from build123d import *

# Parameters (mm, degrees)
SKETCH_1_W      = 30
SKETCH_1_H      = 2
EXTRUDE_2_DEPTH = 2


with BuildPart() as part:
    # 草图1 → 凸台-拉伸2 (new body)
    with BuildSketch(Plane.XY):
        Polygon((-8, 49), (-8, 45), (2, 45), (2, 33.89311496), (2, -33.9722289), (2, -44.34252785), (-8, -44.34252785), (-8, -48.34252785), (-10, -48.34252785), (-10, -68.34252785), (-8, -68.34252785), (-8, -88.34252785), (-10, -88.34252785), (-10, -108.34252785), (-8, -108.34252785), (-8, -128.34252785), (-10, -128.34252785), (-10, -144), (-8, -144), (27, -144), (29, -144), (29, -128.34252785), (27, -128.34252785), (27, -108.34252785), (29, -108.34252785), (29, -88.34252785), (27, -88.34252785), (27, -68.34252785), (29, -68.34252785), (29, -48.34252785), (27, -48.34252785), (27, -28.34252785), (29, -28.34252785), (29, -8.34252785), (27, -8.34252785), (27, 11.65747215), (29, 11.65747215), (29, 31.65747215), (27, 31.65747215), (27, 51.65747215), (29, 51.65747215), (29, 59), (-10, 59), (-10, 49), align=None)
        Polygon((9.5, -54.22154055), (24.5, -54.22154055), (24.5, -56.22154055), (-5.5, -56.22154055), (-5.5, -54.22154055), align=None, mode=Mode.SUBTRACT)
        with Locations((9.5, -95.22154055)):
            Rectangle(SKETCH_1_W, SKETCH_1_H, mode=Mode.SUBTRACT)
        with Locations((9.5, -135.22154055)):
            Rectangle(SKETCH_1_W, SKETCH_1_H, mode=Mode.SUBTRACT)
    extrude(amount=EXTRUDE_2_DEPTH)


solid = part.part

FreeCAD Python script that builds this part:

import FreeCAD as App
import Part
import Sketcher

doc = App.newDocument("Part")
body = doc.addObject("PartDesign::Body", "Body")

# Sketch on XY plane
sketch1 = body.newObject("Sketcher::SketchObject", "Sketch")
sketch1.AttachmentSupport = (doc.getObject("XY_Plane"), [""])
sketch1.MapMode = "FlatFace"
sketch1.addGeometry(Part.LineSegment(App.Vector(-8, 49, 0), App.Vector(-8, 45, 0)), False)
sketch1.addGeometry(Part.LineSegment(App.Vector(-8, 45, 0), App.Vector(2, 45, 0)), False)
sketch1.addGeometry(Part.LineSegment(App.Vector(2, 45, 0), App.Vector(2, -44.3, 0)), False)
sketch1.addGeometry(Part.LineSegment(App.Vector(2, -44.3, 0), App.Vector(-8, -44.3, 0)), False)
sketch1.addGeometry(Part.LineSegment(App.Vector(-8, -44.3, 0), App.Vector(-8, -48.3, 0)), False)
sketch1.addGeometry(Part.LineSegment(App.Vector(-8, -48.3, 0), App.Vector(-10, -48.3, 0)), False)
sketch1.addGeometry(Part.LineSegment(App.Vector(-10, -48.3, 0), App.Vector(-10, -68.3, 0)), False)
sketch1.addGeometry(Part.LineSegment(App.Vector(-10, -68.3, 0), App.Vector(-8, -68.3, 0)), False)
sketch1.addGeometry(Part.LineSegment(App.Vector(-8, -68.3, 0), App.Vector(-8, -88.3, 0)), False)
sketch1.addGeometry(Part.LineSegment(App.Vector(-8, -88.3, 0), App.Vector(-10, -88.3, 0)), False)
sketch1.addGeometry(Part.LineSegment(App.Vector(-10, -88.3, 0), App.Vector(-10, -108.3, 0)), False)
sketch1.addGeometry(Part.LineSegment(App.Vector(-10, -108.3, 0), App.Vector(-8, -108.3, 0)), False)
sketch1.addGeometry(Part.LineSegment(App.Vector(-8, -108.3, 0), App.Vector(-8, -128.3, 0)), False)
sketch1.addGeometry(Part.LineSegment(App.Vector(-8, -128.3, 0), App.Vector(-10, -128.3, 0)), False)
sketch1.addGeometry(Part.LineSegment(App.Vector(-10, -128.3, 0), App.Vector(-10, -144, 0)), False)
sketch1.addGeometry(Part.LineSegment(App.Vector(-10, -144, 0), App.Vector(29, -144, 0)), False)
sketch1.addGeometry(Part.LineSegment(App.Vector(29, -144, 0), App.Vector(29, -128.3, 0)), False)
sketch1.addGeometry(Part.LineSegment(App.Vector(29, -128.3, 0), App.Vector(27, -128.3, 0)), False)
sketch1.addGeometry(Part.LineSegment(App.Vector(27, -128.3, 0), App.Vector(27, -108.3, 0)), False)
sketch1.addGeometry(Part.LineSegment(App.Vector(27, -108.3, 0), App.Vector(29, -108.3, 0)), False)
sketch1.addGeometry(Part.LineSegment(App.Vector(29, -108.3, 0), App.Vector(29, -88.3, 0)), False)
sketch1.addGeometry(Part.LineSegment(App.Vector(29, -88.3, 0), App.Vector(27, -88.3, 0)), False)
sketch1.addGeometry(Part.LineSegment(App.Vector(27, -88.3, 0), App.Vector(27, -68.3, 0)), False)
sketch1.addGeometry(Part.LineSegment(App.Vector(27, -68.3, 0), App.Vector(29, -68.3, 0)), False)
sketch1.addGeometry(Part.LineSegment(App.Vector(29, -68.3, 0), App.Vector(29, -48.3, 0)), False)
sketch1.addGeometry(Part.LineSegment(App.Vector(29, -48.3, 0), App.Vector(27, -48.3, 0)), False)
sketch1.addGeometry(Part.LineSegment(App.Vector(27, -48.3, 0), App.Vector(27, -28.3, 0)), False)
sketch1.addGeometry(Part.LineSegment(App.Vector(27, -28.3, 0), App.Vector(29, -28.3, 0)), False)
sketch1.addGeometry(Part.LineSegment(App.Vector(29, -28.3, 0), App.Vector(29, -8.3, 0)), False)
sketch1.addGeometry(Part.LineSegment(App.Vector(29, -8.3, 0), App.Vector(27, -8.3, 0)), False)
sketch1.addGeometry(Part.LineSegment(App.Vector(27, -8.3, 0), App.Vector(27, 11.7, 0)), False)
sketch1.addGeometry(Part.LineSegment(App.Vector(27, 11.7, 0), App.Vector(29, 11.7, 0)), False)
sketch1.addGeometry(Part.LineSegment(App.Vector(29, 11.7, 0), App.Vector(29, 31.7, 0)), False)
sketch1.addGeometry(Part.LineSegment(App.Vector(29, 31.7, 0), App.Vector(27, 31.7, 0)), False)
sketch1.addGeometry(Part.LineSegment(App.Vector(27, 31.7, 0), App.Vector(27, 51.7, 0)), False)
sketch1.addGeometry(Part.LineSegment(App.Vector(27, 51.7, 0), App.Vector(29, 51.7, 0)), False)
sketch1.addGeometry(Part.LineSegment(App.Vector(29, 51.7, 0), App.Vector(29, 59, 0)), False)
sketch1.addGeometry(Part.LineSegment(App.Vector(29, 59, 0), App.Vector(-10, 59, 0)), False)
sketch1.addGeometry(Part.LineSegment(App.Vector(-10, 59, 0), App.Vector(-10, 49, 0)), False)
sketch1.addGeometry(Part.LineSegment(App.Vector(-10, 49, 0), App.Vector(-8, 49, 0)), False)
sketch1.addGeometry(Part.LineSegment(App.Vector(24.5, -136.2, 0), App.Vector(-5.5, -136.2, 0)), False)
sketch1.addGeometry(Part.LineSegment(App.Vector(-5.5, -136.2, 0), App.Vector(-5.5, -134.2, 0)), False)
sketch1.addGeometry(Part.LineSegment(App.Vector(-5.5, -134.2, 0), App.Vector(24.5, -134.2, 0)), False)
sketch1.addGeometry(Part.LineSegment(App.Vector(24.5, -134.2, 0), App.Vector(24.5, -136.2, 0)), False)
sketch1.addGeometry(Part.LineSegment(App.Vector(24.5, -96.2, 0), App.Vector(-5.5, -96.2, 0)), False)
sketch1.addGeometry(Part.LineSegment(App.Vector(-5.5, -96.2, 0), App.Vector(-5.5, -94.2, 0)), False)
sketch1.addGeometry(Part.LineSegment(App.Vector(-5.5, -94.2, 0), App.Vector(24.5, -94.2, 0)), False)
sketch1.addGeometry(Part.LineSegment(App.Vector(24.5, -94.2, 0), App.Vector(24.5, -96.2, 0)), False)
sketch1.addGeometry(Part.LineSegment(App.Vector(-5.5, -54.2, 0), App.Vector(24.5, -54.2, 0)), False)
sketch1.addGeometry(Part.LineSegment(App.Vector(24.5, -54.2, 0), App.Vector(24.5, -56.2, 0)), False)
sketch1.addGeometry(Part.LineSegment(App.Vector(24.5, -56.2, 0), App.Vector(-5.5, -56.2, 0)), False)
sketch1.addGeometry(Part.LineSegment(App.Vector(-5.5, -56.2, 0), App.Vector(-5.5, -54.2, 0)), False)
sketch1.addConstraint(Sketcher.Constraint("Coincident", 0, 2, 1, 1))
sketch1.addConstraint(Sketcher.Constraint("Coincident", 1, 2, 2, 1))
sketch1.addConstraint(Sketcher.Constraint("Coincident", 2, 2, 3, 1))
sketch1.addConstraint(Sketcher.Constraint("Coincident", 3, 2, 4, 1))
sketch1.addConstraint(Sketcher.Constraint("Coincident", 4, 2, 5, 1))
sketch1.addConstraint(Sketcher.Constraint("Coincident", 5, 2, 6, 1))
sketch1.addConstraint(Sketcher.Constraint("Coincident", 6, 2, 7, 1))
sketch1.addConstraint(Sketcher.Constraint("Coincident", 7, 2, 8, 1))
sketch1.addConstraint(Sketcher.Constraint("Coincident", 8, 2, 9, 1))
sketch1.addConstraint(Sketcher.Constraint("Coincident", 9, 2, 10, 1))
sketch1.addConstraint(Sketcher.Constraint("Coincident", 10, 2, 11, 1))
sketch1.addConstraint(Sketcher.Constraint("Coincident", 11, 2, 12, 1))
sketch1.addConstraint(Sketcher.Constraint("Coincident", 12, 2, 13, 1))
sketch1.addConstraint(Sketcher.Constraint("Coincident", 13, 2, 14, 1))
sketch1.addConstraint(Sketcher.Constraint("Coincident", 14, 2, 15, 1))
sketch1.addConstraint(Sketcher.Constraint("Coincident", 15, 2, 16, 1))
sketch1.addConstraint(Sketcher.Constraint("Coincident", 16, 2, 17, 1))
sketch1.addConstraint(Sketcher.Constraint("Coincident", 17, 2, 18, 1))
sketch1.addConstraint(Sketcher.Constraint("Coincident", 18, 2, 19, 1))
sketch1.addConstraint(Sketcher.Constraint("Coincident", 19, 2, 20, 1))
sketch1.addConstraint(Sketcher.Constraint("Coincident", 20, 2, 21, 1))
sketch1.addConstraint(Sketcher.Constraint("Coincident", 21, 2, 22, 1))
sketch1.addConstraint(Sketcher.Constraint("Coincident", 22, 2, 23, 1))
sketch1.addConstraint(Sketcher.Constraint("Coincident", 23, 2, 24, 1))
sketch1.addConstraint(Sketcher.Constraint("Coincident", 24, 2, 25, 1))
sketch1.addConstraint(Sketcher.Constraint("Coincident", 25, 2, 26, 1))
sketch1.addConstraint(Sketcher.Constraint("Coincident", 26, 2, 27, 1))
sketch1.addConstraint(Sketcher.Constraint("Coincident", 27, 2, 28, 1))
sketch1.addConstraint(Sketcher.Constraint("Coincident", 28, 2, 29, 1))
sketch1.addConstraint(Sketcher.Constraint("Coincident", 29, 2, 30, 1))
sketch1.addConstraint(Sketcher.Constraint("Coincident", 30, 2, 31, 1))
sketch1.addConstraint(Sketcher.Constraint("Coincident", 31, 2, 32, 1))
sketch1.addConstraint(Sketcher.Constraint("Coincident", 32, 2, 33, 1))
sketch1.addConstraint(Sketcher.Constraint("Coincident", 33, 2, 34, 1))
sketch1.addConstraint(Sketcher.Constraint("Coincident", 34, 2, 35, 1))
sketch1.addConstraint(Sketcher.Constraint("Coincident", 35, 2, 36, 1))
sketch1.addConstraint(Sketcher.Constraint("Coincident", 36, 2, 37, 1))
sketch1.addConstraint(Sketcher.Constraint("Coincident", 37, 2, 38, 1))
sketch1.addConstraint(Sketcher.Constraint("Coincident", 38, 2, 39, 1))
sketch1.addConstraint(Sketcher.Constraint("Coincident", 39, 2, 0, 1))
sketch1.addConstraint(Sketcher.Constraint("Coincident", 40, 2, 41, 1))
sketch1.addConstraint(Sketcher.Constraint("Coincident", 41, 2, 42, 1))
sketch1.addConstraint(Sketcher.Constraint("Coincident", 42, 2, 43, 1))
sketch1.addConstraint(Sketcher.Constraint("Coincident", 43, 2, 40, 1))
sketch1.addConstraint(Sketcher.Constraint("Coincident", 44, 2, 45, 1))
sketch1.addConstraint(Sketcher.Constraint("Coincident", 45, 2, 46, 1))
sketch1.addConstraint(Sketcher.Constraint("Coincident", 46, 2, 47, 1))
sketch1.addConstraint(Sketcher.Constraint("Coincident", 47, 2, 44, 1))
sketch1.addConstraint(Sketcher.Constraint("Coincident", 48, 2, 49, 1))
sketch1.addConstraint(Sketcher.Constraint("Coincident", 49, 2, 50, 1))
sketch1.addConstraint(Sketcher.Constraint("Coincident", 50, 2, 51, 1))
sketch1.addConstraint(Sketcher.Constraint("Coincident", 51, 2, 48, 1))
sketch1.addConstraint(Sketcher.Constraint("Vertical", 0))
sketch1.addConstraint(Sketcher.Constraint("Horizontal", 1))
sketch1.addConstraint(Sketcher.Constraint("Vertical", 2))
sketch1.addConstraint(Sketcher.Constraint("Horizontal", 3))
sketch1.addConstraint(Sketcher.Constraint("Vertical", 4))
sketch1.addConstraint(Sketcher.Constraint("Horizontal", 5))
sketch1.addConstraint(Sketcher.Constraint("Vertical", 6))
sketch1.addConstraint(Sketcher.Constraint("Horizontal", 7))
sketch1.addConstraint(Sketcher.Constraint("Vertical", 8))
sketch1.addConstraint(Sketcher.Constraint("Horizontal", 9))
sketch1.addConstraint(Sketcher.Constraint("Vertical", 10))
sketch1.addConstraint(Sketcher.Constraint("Horizontal", 11))
sketch1.addConstraint(Sketcher.Constraint("Vertical", 12))
sketch1.addConstraint(Sketcher.Constraint("Horizontal", 13))
sketch1.addConstraint(Sketcher.Constraint("Vertical", 14))
sketch1.addConstraint(Sketcher.Constraint("Horizontal", 15))
sketch1.addConstraint(Sketcher.Constraint("Vertical", 16))
sketch1.addConstraint(Sketcher.Constraint("Horizontal", 17))
sketch1.addConstraint(Sketcher.Constraint("Vertical", 18))
sketch1.addConstraint(Sketcher.Constraint("Horizontal", 19))
sketch1.addConstraint(Sketcher.Constraint("Vertical", 20))
sketch1.addConstraint(Sketcher.Constraint("Horizontal", 21))
sketch1.addConstraint(Sketcher.Constraint("Vertical", 22))
sketch1.addConstraint(Sketcher.Constraint("Horizontal", 23))
sketch1.addConstraint(Sketcher.Constraint("Vertical", 24))
sketch1.addConstraint(Sketcher.Constraint("Horizontal", 25))
sketch1.addConstraint(Sketcher.Constraint("Vertical", 26))
sketch1.addConstraint(Sketcher.Constraint("Horizontal", 27))
sketch1.addConstraint(Sketcher.Constraint("Vertical", 28))
sketch1.addConstraint(Sketcher.Constraint("Horizontal", 29))
sketch1.addConstraint(Sketcher.Constraint("Vertical", 30))
sketch1.addConstraint(Sketcher.Constraint("Horizontal", 31))
sketch1.addConstraint(Sketcher.Constraint("Vertical", 32))
sketch1.addConstraint(Sketcher.Constraint("Horizontal", 33))
sketch1.addConstraint(Sketcher.Constraint("Vertical", 34))
sketch1.addConstraint(Sketcher.Constraint("Horizontal", 35))
sketch1.addConstraint(Sketcher.Constraint("Vertical", 36))
sketch1.addConstraint(Sketcher.Constraint("Horizontal", 37))
sketch1.addConstraint(Sketcher.Constraint("Vertical", 38))
sketch1.addConstraint(Sketcher.Constraint("Horizontal", 39))
sketch1.addConstraint(Sketcher.Constraint("Horizontal", 40))
sketch1.addConstraint(Sketcher.Constraint("Vertical", 41))
sketch1.addConstraint(Sketcher.Constraint("Horizontal", 42))
sketch1.addConstraint(Sketcher.Constraint("Vertical", 43))
sketch1.addConstraint(Sketcher.Constraint("Horizontal", 44))
sketch1.addConstraint(Sketcher.Constraint("Vertical", 45))
sketch1.addConstraint(Sketcher.Constraint("Horizontal", 46))
sketch1.addConstraint(Sketcher.Constraint("Vertical", 47))
sketch1.addConstraint(Sketcher.Constraint("Horizontal", 48))
sketch1.addConstraint(Sketcher.Constraint("Vertical", 49))
sketch1.addConstraint(Sketcher.Constraint("Horizontal", 50))
sketch1.addConstraint(Sketcher.Constraint("Vertical", 51))
sketch1.addConstraint(Sketcher.Constraint("Horizontal", 13, 2, 16, 2))
sketch1.addConstraint(Sketcher.Constraint("Horizontal", 11, 2, 18, 2))
sketch1.addConstraint(Sketcher.Constraint("Horizontal", 9, 2, 20, 2))
sketch1.addConstraint(Sketcher.Constraint("Horizontal", 7, 2, 22, 2))
sketch1.addConstraint(Sketcher.Constraint("Horizontal", 5, 2, 24, 2))
sketch1.addConstraint(Sketcher.Constraint("Vertical", 0, 2, 3, 2))
sketch1.addConstraint(Sketcher.Constraint("Vertical", 4, 2, 7, 2))
sketch1.addConstraint(Sketcher.Constraint("Vertical", 6, 2, 9, 2))
sketch1.addConstraint(Sketcher.Constraint("Vertical", 8, 2, 11, 2))
sketch1.addConstraint(Sketcher.Constraint("Vertical", 10, 2, 13, 2))
sketch1.addConstraint(Sketcher.Constraint("Vertical", 16, 2, 19, 2))
sketch1.addConstraint(Sketcher.Constraint("Vertical", 18, 2, 21, 2))
sketch1.addConstraint(Sketcher.Constraint("Vertical", 20, 2, 23, 2))
sketch1.addConstraint(Sketcher.Constraint("Vertical", 22, 2, 25, 2))
sketch1.addConstraint(Sketcher.Constraint("Vertical", 24, 2, 27, 2))
sketch1.addConstraint(Sketcher.Constraint("Vertical", 26, 2, 29, 2))
sketch1.addConstraint(Sketcher.Constraint("Vertical", 28, 2, 31, 2))
sketch1.addConstraint(Sketcher.Constraint("Vertical", 30, 2, 33, 2))
sketch1.addConstraint(Sketcher.Constraint("Vertical", 32, 2, 35, 2))
sketch1.addConstraint(Sketcher.Constraint("Vertical", 14, 2, 37, 2))
sketch1.addConstraint(Sketcher.Constraint("Vertical", 41, 2, 44, 2))
sketch1.addConstraint(Sketcher.Constraint("Vertical", 43, 2, 46, 2))
sketch1.addConstraint(Sketcher.Constraint("Vertical", 47, 2, 48, 2))
sketch1.addConstraint(Sketcher.Constraint("Vertical", 45, 2, 50, 2))
sketch1.addConstraint(Sketcher.Constraint("Equal", 13, 17))
sketch1.addConstraint(Sketcher.Constraint("Equal", 0, 4))
sketch1.addConstraint(Sketcher.Constraint("Equal", 6, 8))
sketch1.addConstraint(Sketcher.Constraint("Equal", 8, 10))
sketch1.addConstraint(Sketcher.Constraint("Equal", 10, 12))
sketch1.addConstraint(Sketcher.Constraint("Equal", 24, 26))
sketch1.addConstraint(Sketcher.Constraint("Equal", 26, 28))
sketch1.addConstraint(Sketcher.Constraint("Equal", 28, 30))
sketch1.addConstraint(Sketcher.Constraint("Equal", 30, 32))
sketch1.addConstraint(Sketcher.Constraint("Equal", 32, 34))
sketch1.addConstraint(Sketcher.Constraint("Equal", 3, 38))
sketch1.addConstraint(Sketcher.Constraint("Equal", 39, 41))
sketch1.addConstraint(Sketcher.Constraint("Equal", 43, 45))
sketch1.addConstraint(Sketcher.Constraint("Equal", 47, 49))
sketch1.addConstraint(Sketcher.Constraint("DistanceX", 1, 1, 1, 2, 10.0))
sketch1.addConstraint(Sketcher.Constraint("DistanceX", 5, 2, 5, 1, 2.0))
sketch1.addConstraint(Sketcher.Constraint("DistanceX", 15, 1, 15, 2, 39.0))
sketch1.addConstraint(Sketcher.Constraint("DistanceX", 40, 2, 40, 1, 30.0))
sketch1.addConstraint(Sketcher.Constraint("DistanceY", 0, 2, 0, 1, 4.0))
sketch1.addConstraint(Sketcher.Constraint("DistanceY", 6, 2, 6, 1, 20.0))
sketch1.addConstraint(Sketcher.Constraint("DistanceX", 0, 2, -1, 1, 8.0))
sketch1.addConstraint(Sketcher.Constraint("DistanceY", -1, 1, 0, 2, 45.0))
sketch1.addConstraint(Sketcher.Constraint("DistanceY", 14, 2, -1, 1, 144.0))
sketch1.addConstraint(Sketcher.Constraint("DistanceX", 40, 2, -1, 1, 5.5))
sketch1.addConstraint(Sketcher.Constraint("DistanceY", 2, 2, 2, 1, 89.342528))
sketch1.addConstraint(Sketcher.Constraint("DistanceY", 40, 2, -1, 1, 136.221541))
sketch1.addConstraint(Sketcher.Constraint("DistanceY", 44, 2, -1, 1, 96.221541))
sketch1.addConstraint(Sketcher.Constraint("DistanceY", 48, 2, -1, 1, 54.221541))
pad1 = body.newObject("PartDesign::Pad", "Pad")
pad1.Profile = sketch1
pad1.Length = 2

doc.recompute()
